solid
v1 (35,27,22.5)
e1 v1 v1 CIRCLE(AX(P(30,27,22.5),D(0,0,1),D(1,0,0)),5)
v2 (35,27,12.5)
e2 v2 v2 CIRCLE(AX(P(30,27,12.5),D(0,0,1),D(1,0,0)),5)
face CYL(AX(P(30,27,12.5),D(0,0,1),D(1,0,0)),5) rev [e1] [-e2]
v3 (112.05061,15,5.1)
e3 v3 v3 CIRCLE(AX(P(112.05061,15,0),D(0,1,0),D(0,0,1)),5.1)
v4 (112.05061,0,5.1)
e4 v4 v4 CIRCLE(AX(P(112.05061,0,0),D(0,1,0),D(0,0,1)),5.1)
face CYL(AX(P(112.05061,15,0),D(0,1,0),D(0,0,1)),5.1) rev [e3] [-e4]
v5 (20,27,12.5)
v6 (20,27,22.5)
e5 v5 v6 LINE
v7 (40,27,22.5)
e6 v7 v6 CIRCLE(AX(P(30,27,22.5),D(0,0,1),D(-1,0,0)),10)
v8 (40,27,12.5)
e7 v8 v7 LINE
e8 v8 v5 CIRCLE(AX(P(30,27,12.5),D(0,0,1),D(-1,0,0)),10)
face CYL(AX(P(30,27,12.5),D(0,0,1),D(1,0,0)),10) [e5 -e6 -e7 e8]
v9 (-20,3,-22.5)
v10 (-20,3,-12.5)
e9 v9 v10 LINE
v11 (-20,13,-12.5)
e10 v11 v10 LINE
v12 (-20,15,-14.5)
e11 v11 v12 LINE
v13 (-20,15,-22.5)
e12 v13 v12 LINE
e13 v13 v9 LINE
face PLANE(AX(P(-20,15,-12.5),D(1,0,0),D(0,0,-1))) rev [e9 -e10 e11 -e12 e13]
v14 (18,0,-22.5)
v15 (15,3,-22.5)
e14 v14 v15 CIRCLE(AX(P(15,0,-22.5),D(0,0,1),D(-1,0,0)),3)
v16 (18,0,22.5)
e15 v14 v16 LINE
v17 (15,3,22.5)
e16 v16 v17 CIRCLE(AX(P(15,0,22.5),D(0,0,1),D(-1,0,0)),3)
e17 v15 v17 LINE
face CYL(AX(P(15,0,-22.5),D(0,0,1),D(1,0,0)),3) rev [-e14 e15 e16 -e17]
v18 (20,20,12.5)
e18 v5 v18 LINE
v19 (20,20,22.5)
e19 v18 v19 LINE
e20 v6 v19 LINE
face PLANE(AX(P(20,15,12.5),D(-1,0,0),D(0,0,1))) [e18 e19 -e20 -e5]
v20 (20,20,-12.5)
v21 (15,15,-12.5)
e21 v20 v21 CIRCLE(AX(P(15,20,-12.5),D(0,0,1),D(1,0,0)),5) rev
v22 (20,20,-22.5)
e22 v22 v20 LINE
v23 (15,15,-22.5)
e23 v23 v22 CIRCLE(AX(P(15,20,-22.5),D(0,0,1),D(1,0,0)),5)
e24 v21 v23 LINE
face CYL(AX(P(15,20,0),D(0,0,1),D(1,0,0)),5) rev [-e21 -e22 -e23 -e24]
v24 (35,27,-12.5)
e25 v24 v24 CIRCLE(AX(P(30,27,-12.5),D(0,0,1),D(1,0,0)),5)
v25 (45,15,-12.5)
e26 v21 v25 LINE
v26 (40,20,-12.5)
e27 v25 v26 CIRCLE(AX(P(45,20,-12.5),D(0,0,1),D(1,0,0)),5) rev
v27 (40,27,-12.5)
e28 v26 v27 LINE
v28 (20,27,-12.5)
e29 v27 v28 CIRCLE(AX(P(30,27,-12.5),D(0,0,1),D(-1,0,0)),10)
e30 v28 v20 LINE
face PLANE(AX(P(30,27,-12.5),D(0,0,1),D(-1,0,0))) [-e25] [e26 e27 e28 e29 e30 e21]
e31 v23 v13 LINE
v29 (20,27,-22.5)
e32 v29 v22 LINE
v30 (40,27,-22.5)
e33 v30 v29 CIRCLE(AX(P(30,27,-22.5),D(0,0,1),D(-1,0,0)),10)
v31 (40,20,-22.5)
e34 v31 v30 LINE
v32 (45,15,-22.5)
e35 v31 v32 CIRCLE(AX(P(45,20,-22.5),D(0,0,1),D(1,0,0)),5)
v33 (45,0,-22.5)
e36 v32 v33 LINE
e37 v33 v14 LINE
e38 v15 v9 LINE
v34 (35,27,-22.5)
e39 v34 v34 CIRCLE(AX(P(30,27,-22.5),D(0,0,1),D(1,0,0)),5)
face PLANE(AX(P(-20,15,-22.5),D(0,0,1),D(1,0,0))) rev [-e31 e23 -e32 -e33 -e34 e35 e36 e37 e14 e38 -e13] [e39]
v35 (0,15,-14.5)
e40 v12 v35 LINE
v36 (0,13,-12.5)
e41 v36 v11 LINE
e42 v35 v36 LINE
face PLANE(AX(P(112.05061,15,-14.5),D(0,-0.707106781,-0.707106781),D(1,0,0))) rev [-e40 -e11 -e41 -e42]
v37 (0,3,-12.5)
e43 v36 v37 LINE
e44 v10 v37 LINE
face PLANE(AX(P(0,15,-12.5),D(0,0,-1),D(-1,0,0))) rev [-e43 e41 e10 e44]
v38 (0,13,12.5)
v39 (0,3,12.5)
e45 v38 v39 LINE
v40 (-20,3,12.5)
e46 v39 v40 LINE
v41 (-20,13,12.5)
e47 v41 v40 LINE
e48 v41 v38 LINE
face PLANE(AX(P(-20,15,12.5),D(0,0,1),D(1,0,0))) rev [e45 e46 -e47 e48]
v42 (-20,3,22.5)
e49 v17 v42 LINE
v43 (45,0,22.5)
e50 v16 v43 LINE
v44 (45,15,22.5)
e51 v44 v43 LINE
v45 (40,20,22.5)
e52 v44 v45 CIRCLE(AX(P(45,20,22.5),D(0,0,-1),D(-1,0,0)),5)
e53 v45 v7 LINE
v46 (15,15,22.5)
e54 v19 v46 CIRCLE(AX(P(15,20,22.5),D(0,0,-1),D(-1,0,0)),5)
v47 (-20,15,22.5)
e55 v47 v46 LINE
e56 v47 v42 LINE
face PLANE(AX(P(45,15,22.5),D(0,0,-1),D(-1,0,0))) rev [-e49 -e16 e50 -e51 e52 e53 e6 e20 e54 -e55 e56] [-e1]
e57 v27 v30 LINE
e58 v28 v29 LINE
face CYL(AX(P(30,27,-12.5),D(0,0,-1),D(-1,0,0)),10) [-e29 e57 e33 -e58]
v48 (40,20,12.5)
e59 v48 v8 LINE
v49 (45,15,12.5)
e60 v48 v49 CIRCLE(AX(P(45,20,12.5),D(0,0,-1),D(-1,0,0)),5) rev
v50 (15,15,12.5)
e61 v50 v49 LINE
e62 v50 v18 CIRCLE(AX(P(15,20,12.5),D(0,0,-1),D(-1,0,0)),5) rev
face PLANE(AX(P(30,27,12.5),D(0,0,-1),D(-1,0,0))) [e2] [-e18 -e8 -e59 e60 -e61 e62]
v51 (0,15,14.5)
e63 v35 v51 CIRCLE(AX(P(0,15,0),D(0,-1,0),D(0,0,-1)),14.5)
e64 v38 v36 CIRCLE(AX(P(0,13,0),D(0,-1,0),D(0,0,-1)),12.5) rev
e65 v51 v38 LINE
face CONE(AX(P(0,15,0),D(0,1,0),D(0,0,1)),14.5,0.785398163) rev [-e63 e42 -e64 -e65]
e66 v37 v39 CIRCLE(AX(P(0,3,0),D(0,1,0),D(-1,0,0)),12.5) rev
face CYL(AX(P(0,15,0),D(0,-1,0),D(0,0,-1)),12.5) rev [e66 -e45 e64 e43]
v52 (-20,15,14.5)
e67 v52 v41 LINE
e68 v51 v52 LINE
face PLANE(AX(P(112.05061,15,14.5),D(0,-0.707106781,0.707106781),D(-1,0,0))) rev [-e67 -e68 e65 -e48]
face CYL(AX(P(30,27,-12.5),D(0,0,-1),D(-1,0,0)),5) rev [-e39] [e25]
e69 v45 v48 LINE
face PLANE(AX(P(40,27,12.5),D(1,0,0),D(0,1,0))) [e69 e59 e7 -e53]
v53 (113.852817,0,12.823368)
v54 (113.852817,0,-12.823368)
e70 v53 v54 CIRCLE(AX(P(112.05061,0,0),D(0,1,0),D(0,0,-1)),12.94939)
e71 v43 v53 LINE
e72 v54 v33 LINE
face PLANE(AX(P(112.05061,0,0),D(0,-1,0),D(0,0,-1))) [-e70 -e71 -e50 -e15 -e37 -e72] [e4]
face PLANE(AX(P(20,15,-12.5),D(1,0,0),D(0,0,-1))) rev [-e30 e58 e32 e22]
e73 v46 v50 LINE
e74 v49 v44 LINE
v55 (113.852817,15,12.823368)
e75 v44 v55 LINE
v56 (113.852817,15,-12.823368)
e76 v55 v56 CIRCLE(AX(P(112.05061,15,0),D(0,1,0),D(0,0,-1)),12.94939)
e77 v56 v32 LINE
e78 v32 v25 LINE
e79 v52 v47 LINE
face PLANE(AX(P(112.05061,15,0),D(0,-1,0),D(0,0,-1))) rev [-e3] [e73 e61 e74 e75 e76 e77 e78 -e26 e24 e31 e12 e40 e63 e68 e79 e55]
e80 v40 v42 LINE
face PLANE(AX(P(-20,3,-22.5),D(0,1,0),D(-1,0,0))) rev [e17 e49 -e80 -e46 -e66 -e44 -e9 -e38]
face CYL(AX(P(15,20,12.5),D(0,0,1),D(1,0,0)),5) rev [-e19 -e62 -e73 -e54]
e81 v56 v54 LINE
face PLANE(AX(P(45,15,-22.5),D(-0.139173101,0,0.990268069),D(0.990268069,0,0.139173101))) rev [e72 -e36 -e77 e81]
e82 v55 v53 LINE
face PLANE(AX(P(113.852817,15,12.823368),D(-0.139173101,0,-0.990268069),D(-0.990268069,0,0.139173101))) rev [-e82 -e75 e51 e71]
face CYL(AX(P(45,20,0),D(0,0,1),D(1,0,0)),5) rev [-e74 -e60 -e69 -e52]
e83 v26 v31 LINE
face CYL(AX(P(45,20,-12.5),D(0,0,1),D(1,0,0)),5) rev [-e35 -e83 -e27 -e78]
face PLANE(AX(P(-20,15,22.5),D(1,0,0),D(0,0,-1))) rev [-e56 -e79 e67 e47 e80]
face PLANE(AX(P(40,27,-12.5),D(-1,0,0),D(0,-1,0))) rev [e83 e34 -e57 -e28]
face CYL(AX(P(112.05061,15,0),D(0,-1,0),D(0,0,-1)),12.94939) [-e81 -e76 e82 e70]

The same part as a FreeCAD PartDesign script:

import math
import FreeCAD as App
import Part
import Sketcher

V = App.Vector
Q = App.Units.Quantity


def edges_at(feature, points):
    """Names of the edges that pass closest to the given points."""
    edges = feature.Shape.Edges
    near = lambda p: min(range(len(edges)), key=lambda i: edges[i].distToShape(Part.Vertex(*p))[0])
    return sorted({f"Edge{near(p) + 1}" for p in points})

doc = App.newDocument("Part")
body = doc.addObject("PartDesign::Body", "Body")

# Sketch on XZ plane
sketch1 = doc.addObject("Sketcher::SketchObject", "Sketch")
body.addObject(sketch1)
sketch1.AttachmentSupport = (doc.XZ_Plane, [""])
sketch1.MapMode = "FlatFace"
sketch1.addGeometry([
    Part.LineSegment(V(-20, -22, 0), V(-20, -12, 0)),  # 0
    Part.LineSegment(V(-20, -12, 0), V(0, -12, 0)),  # 1
    Part.ArcOfCircle(Part.Circle(V(0, 0, 0), V(0, 0, 1), 12), math.radians(-90), math.radians(90)),  # 2
    Part.LineSegment(V(0, 12, 0), V(-20, 12, 0)),  # 3
    Part.LineSegment(V(-20, 12, 0), V(-20, 22, 0)),  # 4
    Part.LineSegment(V(-20, 22, 0), V(45, 22, 0)),  # 5
    Part.LineSegment(V(45, 22, 0), V(114, 13, 0)),  # 6
    Part.ArcOfCircle(Part.Circle(V(112, 0, 0), V(0, 0, 1), 13), math.radians(-82), math.radians(82)),  # 7
    Part.LineSegment(V(114, -13, 0), V(45, -22, 0)),  # 8
    Part.LineSegment(V(45, -22, 0), V(-20, -22, 0)),  # 9
], False)
sketch1.addConstraint([
    Sketcher.Constraint("Coincident", 0, 2, 1, 1),
    Sketcher.Constraint("Tangent", 1, 2, 2, 1),
    Sketcher.Constraint("Tangent", 2, 2, 3, 1),
    Sketcher.Constraint("Coincident", 3, 2, 4, 1),
    Sketcher.Constraint("Coincident", 4, 2, 5, 1),
    Sketcher.Constraint("Coincident", 5, 2, 6, 1),
    Sketcher.Constraint("Tangent", 6, 2, 7, 2),
    Sketcher.Constraint("Tangent", 7, 1, 8, 1),
    Sketcher.Constraint("Coincident", 8, 2, 9, 1),
    Sketcher.Constraint("Coincident", 9, 2, 0, 1),
    Sketcher.Constraint("Vertical", 0),
    Sketcher.Constraint("Horizontal", 1),
    Sketcher.Constraint("Horizontal", 3),
    Sketcher.Constraint("Vertical", 4),
    Sketcher.Constraint("Horizontal", 5),
    Sketcher.Constraint("Horizontal", 9),
    Sketcher.Constraint("Coincident", 2, 3, -1, 1),
    Sketcher.Constraint("Symmetric", 6, 2, 7, 1, -1),
    Sketcher.Constraint("Symmetric", 4, 2, 9, 2, -1),
    Sketcher.Constraint("Radius", 2, Q("12.5 mm")),
    Sketcher.Constraint("DistanceX", 1, 1, 1, 2, Q("20 mm")),
    Sketcher.Constraint("DistanceX", 5, 1, 5, 2, Q("65 mm")),
    Sketcher.Constraint("DistanceY", 0, 1, 0, 2, Q("10 mm")),
    Sketcher.Constraint("Angle", 6, Q("-8 deg")),
    Sketcher.Constraint("Radius", 7, Q("12.94939 mm")),
])
pad1 = doc.addObject("PartDesign::Pad", "Pad")
body.addObject(pad1)
pad1.Profile = sketch1
pad1.Length = 15
pad1.Reversed = True

# Sketch on XY plane
sketch2 = doc.addObject("Sketcher::SketchObject", "Sketch001")
body.addObject(sketch2)
sketch2.AttachmentSupport = (doc.XY_Plane, [""])
sketch2.MapMode = "FlatFace"
sketch2.AttachmentOffset = App.Placement(V(0, 0, 22.5), App.Rotation())
sketch2.addGeometry([
    Part.LineSegment(V(15, 3, 0), V(-20, 3, 0)),
    Part.LineSegment(V(-20, 3, 0), V(-20, 0, 0)),
    Part.LineSegment(V(-20, 0, 0), V(18, 0, 0)),
    Part.ArcOfCircle(Part.Circle(V(15, 0, 0), V(0, 0, 1), 3), math.radians(0), math.radians(90)),
], False)
sketch2.addConstraint([
    Sketcher.Constraint("Coincident", 0, 2, 1, 1),
    Sketcher.Constraint("Coincident", 1, 2, 2, 1),
    Sketcher.Constraint("Coincident", 2, 2, 3, 1),
    Sketcher.Constraint("Tangent", 3, 2, 0, 1),
    Sketcher.Constraint("Horizontal", 0),
    Sketcher.Constraint("Vertical", 1),
    Sketcher.Constraint("Horizontal", 2),
    Sketcher.Constraint("PointOnObject", 3, 3, -1),
    Sketcher.Constraint("PointOnObject", 1, 2, -1),
    Sketcher.Constraint("Radius", 3, Q("3 mm")),
    Sketcher.Constraint("DistanceX", 0, 2, 0, 1, Q("35 mm")),
    Sketcher.Constraint("DistanceX", -1, 1, 3, 3, Q("15 mm")),
])
pocket1 = doc.addObject("PartDesign::Pocket", "Pocket")
body.addObject(pocket1)
pocket1.Profile = sketch2
pocket1.Type = "ThroughAll"

# Sketch on XY plane
sketch3 = doc.addObject("Sketcher::SketchObject", "Sketch002")
body.addObject(sketch3)
sketch3.AttachmentSupport = (doc.XY_Plane, [""])
sketch3.MapMode = "FlatFace"
sketch3.AttachmentOffset = App.Placement(V(0, 0, 22.5), App.Rotation())
sketch3.addGeometry([
    Part.LineSegment(V(20, 27, 0), V(20, 15, 0)),  # 0
    Part.LineSegment(V(20, 15, 0), V(40, 15, 0)),  # 1
    Part.LineSegment(V(40, 15, 0), V(40, 27, 0)),  # 2
    Part.ArcOfCircle(Part.Circle(V(30, 27, 0), V(0, 0, 1), 10), math.radians(0), math.radians(180)),  # 3
    Part.Circle(V(30, 27, 0), V(0, 0, 1), 5),  # 4
], False)
sketch3.addConstraint([
    Sketcher.Constraint("Coincident", 0, 2, 1, 1),
    Sketcher.Constraint("Coincident", 1, 2, 2, 1),
    Sketcher.Constraint("Tangent", 2, 2, 3, 1),
    Sketcher.Constraint("Tangent", 3, 2, 0, 1),
    Sketcher.Constraint("Vertical", 0),
    Sketcher.Constraint("Horizontal", 1),
    Sketcher.Constraint("Vertical", 2),
    Sketcher.Constraint("Coincident", 4, 3, 3, 3),
    Sketcher.Constraint("Diameter", 4, Q("10 mm")),
    Sketcher.Constraint("Radius", 3, Q("10 mm")),
    Sketcher.Constraint("DistanceY", 0, 2, 0, 1, Q("12 mm")),
    Sketcher.Constraint("DistanceX", -1, 1, 3, 3, Q("30 mm")),
    Sketcher.Constraint("DistanceY", -1, 1, 3, 3, Q("27 mm")),
])
pad2 = doc.addObject("PartDesign::Pad", "Pad001")
body.addObject(pad2)
pad2.Profile = sketch3
pad2.Length = 10
pad2.Reversed = True
doc.recompute()

fillet = doc.addObject("PartDesign::Fillet", "Fillet")
body.addObject(fillet)
fillet.Base = (pad2, edges_at(pad2, [(40, 15, 17.5), (20, 15, 17.5)]))
fillet.Radius = 5
doc.recompute()

mirrored = doc.addObject("PartDesign::Mirrored", "Mirrored")
body.addObject(mirrored)
mirrored.Originals = [pad2]
mirrored.MirrorPlane = (doc.XY_Plane, [""])
body.Tip = mirrored
doc.recompute()

fillet2 = doc.addObject("PartDesign::Fillet", "Fillet001")
body.addObject(fillet2)
fillet2.Base = (mirrored, edges_at(mirrored, [(40, 15, -17.5), (20, 15, -17.5)]))
fillet2.Radius = 5
doc.recompute()

chamfer = doc.addObject("PartDesign::Chamfer", "Chamfer")
body.addObject(chamfer)
chamfer.Base = (fillet2, edges_at(fillet2, [(-10, 15, 12.5), (-10, 15, -12.5), (12.5, 15, 0)]))
chamfer.Size = 2

# Sketch on XZ plane
sketch4 = doc.addObject("Sketcher::SketchObject", "Sketch003")
body.addObject(sketch4)
sketch4.AttachmentSupport = (doc.XZ_Plane, [""])
sketch4.MapMode = "FlatFace"
sketch4.AttachmentOffset = App.Placement(V(0, 0, -15), App.Rotation())
sketch4.addGeometry(Part.Circle(V(112, 0, 0), V(0, 0, 1), 5), False)
sketch4.addConstraint([
    Sketcher.Constraint("PointOnObject", 0, 3, -1),
    Sketcher.Constraint("Diameter", 0, Q("10.2 mm")),
    Sketcher.Constraint("DistanceX", -1, 1, 0, 3, Q("112.05061 mm")),
])
doc.recompute()
hole = doc.addObject("PartDesign::Hole", "Hole")
body.addObject(hole)
hole.Profile = sketch4
hole.ThreadType = "None"
hole.Diameter = 10.2
hole.DepthType = "ThroughAll"
hole.Reversed = True

doc.recompute()
